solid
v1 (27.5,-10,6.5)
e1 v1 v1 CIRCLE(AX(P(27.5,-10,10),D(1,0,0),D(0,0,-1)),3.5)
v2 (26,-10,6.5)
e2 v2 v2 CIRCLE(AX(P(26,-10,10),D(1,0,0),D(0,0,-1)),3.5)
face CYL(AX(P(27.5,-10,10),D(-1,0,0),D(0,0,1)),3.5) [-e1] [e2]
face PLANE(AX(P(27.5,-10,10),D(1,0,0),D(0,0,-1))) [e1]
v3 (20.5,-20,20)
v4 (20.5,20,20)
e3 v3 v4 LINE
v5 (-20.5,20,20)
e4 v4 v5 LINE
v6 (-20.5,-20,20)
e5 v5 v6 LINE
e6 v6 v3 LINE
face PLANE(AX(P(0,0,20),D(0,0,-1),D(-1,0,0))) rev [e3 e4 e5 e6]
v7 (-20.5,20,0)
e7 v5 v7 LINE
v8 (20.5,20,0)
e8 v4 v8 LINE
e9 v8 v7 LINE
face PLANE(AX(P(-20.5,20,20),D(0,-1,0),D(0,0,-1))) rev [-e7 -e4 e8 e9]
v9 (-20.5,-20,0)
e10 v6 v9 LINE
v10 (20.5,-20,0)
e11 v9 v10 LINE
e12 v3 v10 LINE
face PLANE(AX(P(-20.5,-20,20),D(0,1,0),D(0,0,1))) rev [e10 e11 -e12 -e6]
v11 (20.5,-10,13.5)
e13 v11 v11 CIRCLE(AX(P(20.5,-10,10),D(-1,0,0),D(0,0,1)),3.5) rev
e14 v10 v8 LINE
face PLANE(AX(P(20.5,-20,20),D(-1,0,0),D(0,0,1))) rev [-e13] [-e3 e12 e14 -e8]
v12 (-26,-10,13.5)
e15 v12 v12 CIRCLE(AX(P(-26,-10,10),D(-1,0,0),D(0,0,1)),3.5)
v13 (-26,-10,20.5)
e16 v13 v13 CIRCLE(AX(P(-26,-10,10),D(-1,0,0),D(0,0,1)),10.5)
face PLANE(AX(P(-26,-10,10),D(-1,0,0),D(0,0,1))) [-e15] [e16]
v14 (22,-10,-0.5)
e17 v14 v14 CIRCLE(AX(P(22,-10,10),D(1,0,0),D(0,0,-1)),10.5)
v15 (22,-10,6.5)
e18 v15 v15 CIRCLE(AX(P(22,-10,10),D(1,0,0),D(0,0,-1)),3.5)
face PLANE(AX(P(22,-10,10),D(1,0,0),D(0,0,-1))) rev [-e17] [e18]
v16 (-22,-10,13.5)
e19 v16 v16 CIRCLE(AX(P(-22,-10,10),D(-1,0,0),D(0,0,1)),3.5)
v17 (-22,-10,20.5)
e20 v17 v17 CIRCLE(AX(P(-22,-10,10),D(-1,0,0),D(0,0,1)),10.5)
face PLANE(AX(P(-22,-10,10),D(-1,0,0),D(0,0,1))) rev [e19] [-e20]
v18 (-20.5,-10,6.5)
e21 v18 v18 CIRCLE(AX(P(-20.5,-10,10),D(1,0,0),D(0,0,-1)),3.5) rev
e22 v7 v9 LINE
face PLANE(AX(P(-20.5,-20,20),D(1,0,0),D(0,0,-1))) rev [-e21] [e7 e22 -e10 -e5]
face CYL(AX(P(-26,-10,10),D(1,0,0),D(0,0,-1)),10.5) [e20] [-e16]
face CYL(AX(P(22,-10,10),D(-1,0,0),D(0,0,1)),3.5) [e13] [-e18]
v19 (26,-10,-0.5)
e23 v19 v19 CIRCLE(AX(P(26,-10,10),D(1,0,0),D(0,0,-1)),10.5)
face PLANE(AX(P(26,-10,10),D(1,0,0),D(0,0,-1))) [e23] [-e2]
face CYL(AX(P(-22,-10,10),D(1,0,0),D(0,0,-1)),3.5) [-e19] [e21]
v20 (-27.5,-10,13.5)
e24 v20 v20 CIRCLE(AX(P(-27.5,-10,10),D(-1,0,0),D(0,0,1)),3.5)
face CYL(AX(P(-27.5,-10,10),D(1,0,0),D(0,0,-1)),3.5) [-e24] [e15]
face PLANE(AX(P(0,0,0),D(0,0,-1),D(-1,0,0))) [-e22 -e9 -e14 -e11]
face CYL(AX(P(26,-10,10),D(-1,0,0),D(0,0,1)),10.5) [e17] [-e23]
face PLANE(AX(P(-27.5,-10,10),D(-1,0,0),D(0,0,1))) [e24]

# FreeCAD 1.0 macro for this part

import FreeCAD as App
import Part
import Sketcher

V = App.Vector
Q = App.Units.Quantity


def add_polygon(sketch, points):
    """Adds a closed chain of lines whose ends are joined by coincident constraints."""
    first, n = sketch.GeometryCount, len(points)
    for a, b in zip(points, points[1:] + points[:1]):
        sketch.addGeometry(Part.LineSegment(App.Vector(*a, 0), App.Vector(*b, 0)), False)
    for i in range(n):
        sketch.addConstraint(Sketcher.Constraint("Coincident", first + i, 2, first + (i + 1) % n, 1))

doc = App.newDocument("Part")
params = doc.addObject("Spreadsheet::Sheet", "Params")
for row, (alias, value) in enumerate([
    ("sketch1_width", "41 mm"),
    ("sketch1_height", "40 mm"),
    ("pad1_length", "20 mm"),
    ("sketch2_diameter", "7 mm"),
    ("pad2_length", "1.5 mm"),
    ("sketch3_diameter", "7 mm"),
    ("pad3_length", "1.5 mm"),
    ("sketch4_diameter", "21 mm"),
    ("pad4_length", "4 mm"),
    ("sketch5_diameter", "21 mm"),
    ("pad5_length", "4 mm"),
    ("sketch6_diameter", "7 mm"),
    ("pad6_length", "1.5 mm"),
    ("sketch7_diameter", "7 mm"),
    ("pad7_length", "1.5 mm"),
], start=1):
    params.set(f"A{row}", alias)
    params.set(f"B{row}", "=" + value)
    params.setAlias(f"B{row}", alias)

body = doc.addObject("PartDesign::Body", "Body")

# Sketch on XY plane
sketch1 = body.newObject("Sketcher::SketchObject", "Sketch")
sketch1.AttachmentSupport = (doc.getObject("XY_Plane"), [""])
sketch1.MapMode = "FlatFace"
add_polygon(sketch1, [(-20.5, 20), (-20.5, -20), (20.5, -20), (20.5, 20)])  # lines 0-3
sketch1.addConstraint([
    Sketcher.Constraint("Vertical", 0),
    Sketcher.Constraint("Horizontal", 1),
    Sketcher.Constraint("Vertical", 2),
    Sketcher.Constraint("Horizontal", 3),
    Sketcher.Constraint("Symmetric", 0, 2, 2, 2, -1, 1),
    Sketcher.Constraint("DistanceX", 1, 1, 1, 2, Q("41 mm")),
    Sketcher.Constraint("DistanceY", 0, 2, 0, 1, Q("40 mm")),
])
sketch1.setExpression("Constraints[9]", "Params.sketch1_width")
sketch1.setExpression("Constraints[10]", "Params.sketch1_height")
pad1 = body.newObject("PartDesign::Pad", "Pad")
pad1.Profile = sketch1
pad1.setExpression("Length", "Params.pad1_length")

# Sketch on YZ plane
sketch2 = body.newObject("Sketcher::SketchObject", "Sketch001")
sketch2.AttachmentSupport = (doc.getObject("YZ_Plane"), [""])
sketch2.MapMode = "FlatFace"
sketch2.AttachmentOffset = App.Placement(V(0, 0, 20.5), App.Rotation())
sketch2.addGeometry(Part.Circle(V(-10, 10, 0), V(0, 0, 1), 3.5), False)
sketch2.addConstraint([
    Sketcher.Constraint("Diameter", 0, Q("7 mm")),
    Sketcher.Constraint("DistanceX", 0, 3, -1, 1, Q("10 mm")),
    Sketcher.Constraint("DistanceY", -1, 1, 0, 3, Q("10 mm")),
])
sketch2.setExpression("Constraints[0]", "Params.sketch2_diameter")
pad2 = body.newObject("PartDesign::Pad", "Pad001")
pad2.Profile = sketch2
pad2.setExpression("Length", "Params.pad2_length")

# Sketch on YZ plane
sketch3 = body.newObject("Sketcher::SketchObject", "Sketch002")
sketch3.AttachmentSupport = (doc.getObject("YZ_Plane"), [""])
sketch3.MapMode = "FlatFace"
sketch3.AttachmentOffset = App.Placement(V(0, 0, -22), App.Rotation())
sketch3.addGeometry(Part.Circle(V(-10, 10, 0), V(0, 0, 1), 3.5), False)
sketch3.addConstraint([
    Sketcher.Constraint("Diameter", 0, Q("7 mm")),
    Sketcher.Constraint("DistanceX", 0, 3, -1, 1, Q("10 mm")),
    Sketcher.Constraint("DistanceY", -1, 1, 0, 3, Q("10 mm")),
])
sketch3.setExpression("Constraints[0]", "Params.sketch3_diameter")
pad3 = body.newObject("PartDesign::Pad", "Pad002")
pad3.Profile = sketch3
pad3.setExpression("Length", "Params.pad3_length")

# Sketch on YZ plane
sketch4 = body.newObject("Sketcher::SketchObject", "Sketch003")
sketch4.AttachmentSupport = (doc.getObject("YZ_Plane"), [""])
sketch4.MapMode = "FlatFace"
sketch4.AttachmentOffset = App.Placement(V(0, 0, 22), App.Rotation())
sketch4.addGeometry(Part.Circle(V(-10, 10, 0), V(0, 0, 1), 10.5), False)
sketch4.addConstraint([
    Sketcher.Constraint("Diameter", 0, Q("21 mm")),
    Sketcher.Constraint("DistanceX", 0, 3, -1, 1, Q("10 mm")),
    Sketcher.Constraint("DistanceY", -1, 1, 0, 3, Q("10 mm")),
])
sketch4.setExpression("Constraints[0]", "Params.sketch4_diameter")
pad4 = body.newObject("PartDesign::Pad", "Pad003")
pad4.Profile = sketch4
pad4.setExpression("Length", "Params.pad4_length")

# Sketch on YZ plane
sketch5 = body.newObject("Sketcher::SketchObject", "Sketch004")
sketch5.AttachmentSupport = (doc.getObject("YZ_Plane"), [""])
sketch5.MapMode = "FlatFace"
sketch5.AttachmentOffset = App.Placement(V(0, 0, -26), App.Rotation())
sketch5.addGeometry(Part.Circle(V(-10, 10, 0), V(0, 0, 1), 10.5), False)
sketch5.addConstraint([
    Sketcher.Constraint("Diameter", 0, Q("21 mm")),
    Sketcher.Constraint("DistanceX", 0, 3, -1, 1, Q("10 mm")),
    Sketcher.Constraint("DistanceY", -1, 1, 0, 3, Q("10 mm")),
])
sketch5.setExpression("Constraints[0]", "Params.sketch5_diameter")
pad5 = body.newObject("PartDesign::Pad", "Pad004")
pad5.Profile = sketch5
pad5.setExpression("Length", "Params.pad5_length")

# Sketch on YZ plane
sketch6 = body.newObject("Sketcher::SketchObject", "Sketch005")
sketch6.AttachmentSupport = (doc.getObject("YZ_Plane"), [""])
sketch6.MapMode = "FlatFace"
sketch6.AttachmentOffset = App.Placement(V(0, 0, -27.5), App.Rotation())
sketch6.addGeometry(Part.Circle(V(-10, 10, 0), V(0, 0, 1), 3.5), False)
sketch6.addConstraint([
    Sketcher.Constraint("Diameter", 0, Q("7 mm")),
    Sketcher.Constraint("DistanceX", 0, 3, -1, 1, Q("10 mm")),
    Sketcher.Constraint("DistanceY", -1, 1, 0, 3, Q("10 mm")),
])
sketch6.setExpression("Constraints[0]", "Params.sketch6_diameter")
pad6 = body.newObject("PartDesign::Pad", "Pad005")
pad6.Profile = sketch6
pad6.setExpression("Length", "Params.pad6_length")

# Sketch on YZ plane
sketch7 = body.newObject("Sketcher::SketchObject", "Sketch006")
sketch7.AttachmentSupport = (doc.getObject("YZ_Plane"), [""])
sketch7.MapMode = "FlatFace"
sketch7.AttachmentOffset = App.Placement(V(0, 0, 26), App.Rotation())
sketch7.addGeometry(Part.Circle(V(-10, 10, 0), V(0, 0, 1), 3.5), False)
sketch7.addConstraint([
    Sketcher.Constraint("Diameter", 0, Q("7 mm")),
    Sketcher.Constraint("DistanceX", 0, 3, -1, 1, Q("10 mm")),
    Sketcher.Constraint("DistanceY", -1, 1, 0, 3, Q("10 mm")),
])
sketch7.setExpression("Constraints[0]", "Params.sketch7_diameter")
pad7 = body.newObject("PartDesign::Pad", "Pad006")
pad7.Profile = sketch7
pad7.setExpression("Length", "Params.pad7_length")

doc.recompute()
